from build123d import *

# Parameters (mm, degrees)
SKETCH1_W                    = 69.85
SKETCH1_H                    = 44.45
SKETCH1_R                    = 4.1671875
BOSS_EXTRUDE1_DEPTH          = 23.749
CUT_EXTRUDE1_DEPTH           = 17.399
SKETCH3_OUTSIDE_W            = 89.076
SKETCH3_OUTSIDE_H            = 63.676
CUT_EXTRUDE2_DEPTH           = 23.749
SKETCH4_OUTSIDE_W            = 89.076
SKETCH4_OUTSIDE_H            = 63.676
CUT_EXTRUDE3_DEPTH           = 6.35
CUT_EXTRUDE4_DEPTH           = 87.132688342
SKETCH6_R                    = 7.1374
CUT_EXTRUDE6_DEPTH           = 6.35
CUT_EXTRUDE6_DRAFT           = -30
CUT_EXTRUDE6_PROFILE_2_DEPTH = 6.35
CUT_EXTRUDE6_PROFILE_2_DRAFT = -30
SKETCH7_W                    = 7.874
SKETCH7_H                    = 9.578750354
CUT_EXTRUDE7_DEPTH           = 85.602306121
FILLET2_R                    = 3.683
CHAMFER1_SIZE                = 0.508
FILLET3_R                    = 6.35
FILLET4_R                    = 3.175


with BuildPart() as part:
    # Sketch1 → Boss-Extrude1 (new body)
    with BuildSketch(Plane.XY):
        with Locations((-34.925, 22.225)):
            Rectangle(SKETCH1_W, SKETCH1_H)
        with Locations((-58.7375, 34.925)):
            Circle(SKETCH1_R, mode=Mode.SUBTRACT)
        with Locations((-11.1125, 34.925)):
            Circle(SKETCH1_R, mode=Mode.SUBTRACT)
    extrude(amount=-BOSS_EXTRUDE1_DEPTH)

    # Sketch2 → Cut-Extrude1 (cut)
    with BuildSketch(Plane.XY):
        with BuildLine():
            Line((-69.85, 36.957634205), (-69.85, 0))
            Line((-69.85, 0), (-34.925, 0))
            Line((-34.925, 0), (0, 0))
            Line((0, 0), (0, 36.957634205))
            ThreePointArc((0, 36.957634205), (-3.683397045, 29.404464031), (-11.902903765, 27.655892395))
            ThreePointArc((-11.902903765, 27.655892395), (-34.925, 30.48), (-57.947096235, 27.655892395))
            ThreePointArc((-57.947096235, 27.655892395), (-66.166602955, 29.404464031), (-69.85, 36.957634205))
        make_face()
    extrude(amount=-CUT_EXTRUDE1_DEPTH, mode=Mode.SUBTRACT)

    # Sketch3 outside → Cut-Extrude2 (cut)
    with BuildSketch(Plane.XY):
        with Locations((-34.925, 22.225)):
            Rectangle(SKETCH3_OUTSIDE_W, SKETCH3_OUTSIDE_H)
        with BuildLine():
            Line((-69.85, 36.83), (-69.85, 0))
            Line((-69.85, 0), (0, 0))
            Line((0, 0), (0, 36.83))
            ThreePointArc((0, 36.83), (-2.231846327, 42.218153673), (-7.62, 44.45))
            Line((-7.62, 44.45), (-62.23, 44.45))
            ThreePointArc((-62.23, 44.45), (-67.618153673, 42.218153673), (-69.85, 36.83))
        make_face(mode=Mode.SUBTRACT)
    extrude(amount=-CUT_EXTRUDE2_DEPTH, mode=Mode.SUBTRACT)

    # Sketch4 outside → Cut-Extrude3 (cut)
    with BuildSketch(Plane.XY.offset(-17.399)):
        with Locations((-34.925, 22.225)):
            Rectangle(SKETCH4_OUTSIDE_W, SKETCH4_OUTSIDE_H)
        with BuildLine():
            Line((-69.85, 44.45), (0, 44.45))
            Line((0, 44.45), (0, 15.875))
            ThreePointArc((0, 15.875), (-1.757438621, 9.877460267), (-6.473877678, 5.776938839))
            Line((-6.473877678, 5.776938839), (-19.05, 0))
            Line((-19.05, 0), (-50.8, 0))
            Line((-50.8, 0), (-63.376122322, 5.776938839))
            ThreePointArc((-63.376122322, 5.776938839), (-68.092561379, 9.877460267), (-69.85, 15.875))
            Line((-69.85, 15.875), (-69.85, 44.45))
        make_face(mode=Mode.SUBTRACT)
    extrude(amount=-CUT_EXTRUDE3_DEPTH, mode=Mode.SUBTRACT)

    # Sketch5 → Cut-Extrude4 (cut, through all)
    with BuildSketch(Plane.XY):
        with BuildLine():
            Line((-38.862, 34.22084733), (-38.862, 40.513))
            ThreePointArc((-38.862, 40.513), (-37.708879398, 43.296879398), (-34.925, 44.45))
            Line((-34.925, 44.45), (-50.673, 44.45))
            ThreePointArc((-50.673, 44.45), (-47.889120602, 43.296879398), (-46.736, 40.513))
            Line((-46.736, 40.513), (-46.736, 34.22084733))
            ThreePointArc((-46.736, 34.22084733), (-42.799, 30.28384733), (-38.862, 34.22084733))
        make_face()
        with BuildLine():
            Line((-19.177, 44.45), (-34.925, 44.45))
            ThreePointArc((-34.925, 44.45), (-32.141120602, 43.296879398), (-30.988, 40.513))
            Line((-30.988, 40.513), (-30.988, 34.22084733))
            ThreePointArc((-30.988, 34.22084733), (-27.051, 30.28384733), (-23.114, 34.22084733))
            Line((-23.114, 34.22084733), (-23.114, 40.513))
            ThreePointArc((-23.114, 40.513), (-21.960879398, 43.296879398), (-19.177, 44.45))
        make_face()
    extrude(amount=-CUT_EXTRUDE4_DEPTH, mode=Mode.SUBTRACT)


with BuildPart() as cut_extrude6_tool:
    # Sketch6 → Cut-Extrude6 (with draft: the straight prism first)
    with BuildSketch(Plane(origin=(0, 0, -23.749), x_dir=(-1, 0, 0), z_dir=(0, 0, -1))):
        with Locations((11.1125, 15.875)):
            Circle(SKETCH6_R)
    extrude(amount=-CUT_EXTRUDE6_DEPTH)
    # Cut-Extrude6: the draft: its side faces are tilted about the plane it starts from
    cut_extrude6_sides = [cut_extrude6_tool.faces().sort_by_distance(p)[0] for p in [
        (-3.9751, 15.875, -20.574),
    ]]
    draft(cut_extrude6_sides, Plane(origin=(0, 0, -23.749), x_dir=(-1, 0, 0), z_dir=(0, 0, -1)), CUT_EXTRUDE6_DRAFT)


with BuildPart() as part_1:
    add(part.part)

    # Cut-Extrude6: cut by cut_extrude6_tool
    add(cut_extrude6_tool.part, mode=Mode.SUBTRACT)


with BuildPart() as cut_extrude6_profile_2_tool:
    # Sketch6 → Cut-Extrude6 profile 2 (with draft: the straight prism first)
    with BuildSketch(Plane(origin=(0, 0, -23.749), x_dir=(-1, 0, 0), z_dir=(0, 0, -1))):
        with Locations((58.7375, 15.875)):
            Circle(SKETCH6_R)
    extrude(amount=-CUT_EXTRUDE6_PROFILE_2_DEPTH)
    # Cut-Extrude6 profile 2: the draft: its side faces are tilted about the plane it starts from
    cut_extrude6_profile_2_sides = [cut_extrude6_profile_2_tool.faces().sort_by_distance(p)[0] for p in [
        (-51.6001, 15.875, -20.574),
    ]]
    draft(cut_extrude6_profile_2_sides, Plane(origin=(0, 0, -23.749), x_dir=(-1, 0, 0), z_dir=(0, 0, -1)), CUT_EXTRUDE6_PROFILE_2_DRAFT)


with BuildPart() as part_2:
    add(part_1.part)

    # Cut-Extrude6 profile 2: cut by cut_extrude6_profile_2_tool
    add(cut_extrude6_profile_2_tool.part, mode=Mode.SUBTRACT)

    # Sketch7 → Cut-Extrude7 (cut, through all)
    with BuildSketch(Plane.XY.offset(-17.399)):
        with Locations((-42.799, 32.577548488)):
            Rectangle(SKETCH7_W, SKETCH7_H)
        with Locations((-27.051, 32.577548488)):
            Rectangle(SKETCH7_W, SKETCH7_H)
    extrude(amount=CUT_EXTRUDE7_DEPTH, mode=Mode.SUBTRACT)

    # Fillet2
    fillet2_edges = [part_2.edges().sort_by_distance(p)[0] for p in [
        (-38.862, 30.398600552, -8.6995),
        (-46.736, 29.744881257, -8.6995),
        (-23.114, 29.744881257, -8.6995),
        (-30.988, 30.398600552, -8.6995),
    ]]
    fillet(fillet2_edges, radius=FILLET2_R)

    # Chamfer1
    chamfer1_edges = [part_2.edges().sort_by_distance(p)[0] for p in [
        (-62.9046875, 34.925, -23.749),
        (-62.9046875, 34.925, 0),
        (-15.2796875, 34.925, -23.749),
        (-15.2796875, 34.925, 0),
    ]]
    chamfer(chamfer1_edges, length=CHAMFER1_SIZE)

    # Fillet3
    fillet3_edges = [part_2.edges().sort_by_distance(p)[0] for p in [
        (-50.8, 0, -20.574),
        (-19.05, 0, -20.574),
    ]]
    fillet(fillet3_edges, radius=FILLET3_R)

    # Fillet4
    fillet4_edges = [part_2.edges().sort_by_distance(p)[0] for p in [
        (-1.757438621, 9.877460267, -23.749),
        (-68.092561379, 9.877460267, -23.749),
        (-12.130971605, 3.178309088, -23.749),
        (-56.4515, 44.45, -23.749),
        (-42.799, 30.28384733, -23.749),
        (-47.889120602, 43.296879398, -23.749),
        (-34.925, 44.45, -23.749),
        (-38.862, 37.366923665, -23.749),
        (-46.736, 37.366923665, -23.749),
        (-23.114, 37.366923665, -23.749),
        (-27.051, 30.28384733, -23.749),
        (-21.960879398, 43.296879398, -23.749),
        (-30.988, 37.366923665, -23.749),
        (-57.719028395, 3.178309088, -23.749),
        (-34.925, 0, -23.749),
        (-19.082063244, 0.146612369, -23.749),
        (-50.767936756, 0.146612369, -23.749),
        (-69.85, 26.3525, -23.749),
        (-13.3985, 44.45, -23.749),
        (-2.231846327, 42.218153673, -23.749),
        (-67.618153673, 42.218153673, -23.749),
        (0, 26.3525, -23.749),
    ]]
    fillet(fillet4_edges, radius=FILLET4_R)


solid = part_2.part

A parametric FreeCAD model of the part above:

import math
import FreeCAD as App
import Part
import Sketcher

V = App.Vector
Q = App.Units.Quantity


def edges_at(feature, points):
    """Names of the edges that pass closest to the given points."""
    edges = feature.Shape.Edges
    near = lambda p: min(range(len(edges)), key=lambda i: edges[i].distToShape(Part.Vertex(*p))[0])
    return sorted({f"Edge{near(p) + 1}" for p in points})


def faces_at(feature, points):
    """Names of the faces that lie closest to the given points."""
    faces = feature.Shape.Faces
    near = lambda p: min(range(len(faces)), key=lambda i: faces[i].distToShape(Part.Vertex(*p))[0])
    return sorted({f"Face{near(p) + 1}" for p in points})


def add_polygon(sketch, points):
    """Adds a closed chain of lines whose ends are joined by coincident constraints."""
    first, n = sketch.GeometryCount, len(points)
    for a, b in zip(points, points[1:] + points[:1]):
        sketch.addGeometry(Part.LineSegment(App.Vector(*a, 0), App.Vector(*b, 0)), False)
    for i in range(n):
        sketch.addConstraint(Sketcher.Constraint("Coincident", first + i, 2, first + (i + 1) % n, 1))

doc = App.newDocument("Part")
body = doc.addObject("PartDesign::Body", "Body")

# Sketch on XY plane
sketch1 = doc.addObject("Sketcher::SketchObject", "Sketch")
body.addObject(sketch1)
sketch1.AttachmentSupport = (doc.XY_Plane, [""])
sketch1.MapMode = "FlatFace"
add_polygon(sketch1, [(-69.8, 44.5), (-69.8, 0), (0, 0), (0, 44.5)])  # lines 0-3
sketch1.addGeometry(Part.Circle(V(-58.7, 34.9, 0), V(0, 0, 1), 4.2), False)  # 4
sketch1.addGeometry(Part.Circle(V(-11.1, 34.9, 0), V(0, 0, 1), 4.2), False)  # 5
sketch1.addConstraint([
    Sketcher.Constraint("Vertical", 0),
    Sketcher.Constraint("Horizontal", 1),
    Sketcher.Constraint("Vertical", 2),
    Sketcher.Constraint("Horizontal", 3),
    Sketcher.Constraint("Coincident", 1, 2, -1, 1),
    Sketcher.Constraint("Equal", 4, 5),
    Sketcher.Constraint("Horizontal", 4, 3, 5, 3),
    Sketcher.Constraint("Diameter", 4, Q("0.328125 in")),
    Sketcher.Constraint("DistanceX", 1, 1, 1, 2, Q("2.75 in")),
    Sketcher.Constraint("DistanceY", 0, 2, 0, 1, Q("1.75 in")),
    Sketcher.Constraint("DistanceX", 4, 3, -1, 1, Q("2.3125 in")),
    Sketcher.Constraint("DistanceY", -1, 1, 4, 3, Q("1.375 in")),
    Sketcher.Constraint("DistanceX", 5, 3, -1, 1, Q("0.4375 in")),
])
pad1 = doc.addObject("PartDesign::Pad", "Pad")
body.addObject(pad1)
pad1.Profile = sketch1
pad1.Length = Q("0.935 in")
pad1.Reversed = True

# Sketch on XY plane
sketch2 = doc.addObject("Sketcher::SketchObject", "Sketch001")
body.addObject(sketch2)
sketch2.AttachmentSupport = (doc.XY_Plane, [""])
sketch2.MapMode = "FlatFace"
sketch2.addGeometry([
    Part.LineSegment(V(-70, 37, 0), V(-70, 0, 0)),  # 0
    Part.LineSegment(V(-70, 0, 0), V(0, 0, 0)),  # 1
    Part.LineSegment(V(0, 0, 0), V(0, 37, 0)),  # 2
    Part.ArcOfCircle(Part.Circle(V(-10, 37, 0), V(0, 0, 1), 10), math.radians(-104), math.radians(0)),  # 3
    Part.ArcOfCircle(Part.Circle(V(-35, -65, 0), V(0, 0, 1), 95), math.radians(76), math.radians(104)),  # 4
    Part.ArcOfCircle(Part.Circle(V(-60, 37, 0), V(0, 0, 1), 10), math.radians(180), math.radians(284)),  # 5
], False)
sketch2.addConstraint([
    Sketcher.Constraint("Coincident", 0, 2, 1, 1),
    Sketcher.Constraint("Coincident", 1, 2, 2, 1),
    Sketcher.Constraint("Tangent", 2, 2, 3, 2),
    Sketcher.Constraint("Tangent", 3, 1, 4, 1),
    Sketcher.Constraint("Tangent", 4, 2, 5, 2),
    Sketcher.Constraint("Tangent", 5, 1, 0, 1),
    Sketcher.Constraint("Vertical", 0),
    Sketcher.Constraint("Horizontal", 1),
    Sketcher.Constraint("Vertical", 2),
    Sketcher.Constraint("Coincident", 1, 2, -1, 1),
    Sketcher.Constraint("Equal", 3, 5),
    Sketcher.Constraint("Horizontal", 3, 3, 5, 3),
    Sketcher.Constraint("Radius", 4, Q("3.75 in")),
    Sketcher.Constraint("DistanceX", 1, 1, 1, 2, Q("2.75 in")),
    Sketcher.Constraint("Radius", 3, Q("0.3774 in")),
    Sketcher.Constraint("DistanceY", 4, 3, -1, 1, Q("2.55 in")),
])
pocket1 = doc.addObject("PartDesign::Pocket", "Pocket")
body.addObject(pocket1)
pocket1.Profile = sketch2
pocket1.Length = Q("0.685 in")

# Sketch on XY plane
sketch3 = doc.addObject("Sketcher::SketchObject", "Sketch002")
body.addObject(sketch3)
sketch3.AttachmentSupport = (doc.XY_Plane, [""])
sketch3.MapMode = "FlatFace"
add_polygon(sketch3, [(-79, 54), (-79, -10), (10, -10), (10, 54)])  # lines 0-3
sketch3.addGeometry(Part.LineSegment(V(-70, 0, 0), V(-70, 37, 0)), False)  # 4
sketch3.addGeometry(Part.ArcOfCircle(Part.Circle(V(-62, 37, 0), V(0, 0, 1), 8), math.radians(90), math.radians(180)), False)  # 5
sketch3.addGeometry(Part.LineSegment(V(-62, 44, 0), V(-8, 44, 0)), False)  # 6
sketch3.addGeometry(Part.ArcOfCircle(Part.Circle(V(-8, 37, 0), V(0, 0, 1), 8), math.radians(0), math.radians(90)), False)  # 7
sketch3.addGeometry(Part.LineSegment(V(0, 37, 0), V(0, 0, 0)), False)  # 8
sketch3.addGeometry(Part.LineSegment(V(0, 0, 0), V(-70, 0, 0)), False)  # 9
sketch3.addConstraint([
    Sketcher.Constraint("Tangent", 4, 2, 5, 2),
    Sketcher.Constraint("Tangent", 5, 1, 6, 1),
    Sketcher.Constraint("Tangent", 6, 2, 7, 2),
    Sketcher.Constraint("Tangent", 7, 1, 8, 1),
    Sketcher.Constraint("Coincident", 8, 2, 9, 1),
    Sketcher.Constraint("Coincident", 9, 2, 4, 1),
    Sketcher.Constraint("Vertical", 0),
    Sketcher.Constraint("Horizontal", 1),
    Sketcher.Constraint("Vertical", 2),
    Sketcher.Constraint("Horizontal", 3),
    Sketcher.Constraint("Vertical", 4),
    Sketcher.Constraint("Horizontal", 6),
    Sketcher.Constraint("Vertical", 8),
    Sketcher.Constraint("Horizontal", 9),
    Sketcher.Constraint("Coincident", 8, 2, -1, 1),
    Sketcher.Constraint("Equal", 5, 7),
    Sketcher.Constraint("Radius", 5, Q("0.3 in")),
    Sketcher.Constraint("DistanceX", 6, 1, 6, 2, Q("2.15 in")),
    Sketcher.Constraint("DistanceY", 4, 1, 4, 2, Q("1.45 in")),
    Sketcher.Constraint("DistanceX", 1, 1, 1, 2, Q("89.076 mm")),
    Sketcher.Constraint("DistanceY", 0, 2, 0, 1, Q("63.676 mm")),
    Sketcher.Constraint("DistanceX", 0, 2, -1, 1, Q("79.463 mm")),
    Sketcher.Constraint("DistanceY", 0, 2, -1, 1, Q("9.613 mm")),
])
pocket2 = doc.addObject("PartDesign::Pocket", "Pocket001")
body.addObject(pocket2)
pocket2.Profile = sketch3
pocket2.Length = Q("0.935 in")

# Sketch on XY plane
sketch4 = doc.addObject("Sketcher::SketchObject", "Sketch003")
body.addObject(sketch4)
sketch4.AttachmentSupport = (doc.XY_Plane, [""])
sketch4.MapMode = "FlatFace"
sketch4.AttachmentOffset = App.Placement(V(0, 0, -0.685 * 25.4), App.Rotation())
add_polygon(sketch4, [(-79, 54), (-79, -10), (10, -10), (10, 54)])  # lines 0-3
sketch4.addGeometry(Part.LineSegment(V(-70, 16, 0), V(-70, 44, 0)), False)  # 4
sketch4.addGeometry(Part.LineSegment(V(-70, 44, 0), V(0, 44, 0)), False)  # 5
sketch4.addGeometry(Part.LineSegment(V(0, 44, 0), V(0, 16, 0)), False)  # 6
sketch4.addGeometry(Part.ArcOfCircle(Part.Circle(V(-11, 16, 0), V(0, 0, 1), 11), math.radians(-65), math.radians(0)), False)  # 7
sketch4.addGeometry(Part.LineSegment(V(-6, 6, 0), V(-19, 0, 0)), False)  # 8
sketch4.addGeometry(Part.LineSegment(V(-19, 0, 0), V(-51, 0, 0)), False)  # 9
sketch4.addGeometry(Part.LineSegment(V(-51, 0, 0), V(-63, 6, 0)), False)  # 10
sketch4.addGeometry(Part.ArcOfCircle(Part.Circle(V(-59, 16, 0), V(0, 0, 1), 11), math.radians(180), math.radians(245)), False)  # 11
sketch4.addConstraint([
    Sketcher.Constraint("Coincident", 4, 2, 5, 1),
    Sketcher.Constraint("Coincident", 5, 2, 6, 1),
    Sketcher.Constraint("Tangent", 6, 2, 7, 2),
    Sketcher.Constraint("Tangent", 7, 1, 8, 1),
    Sketcher.Constraint("Coincident", 8, 2, 9, 1),
    Sketcher.Constraint("Coincident", 9, 2, 10, 1),
    Sketcher.Constraint("Tangent", 10, 2, 11, 2),
    Sketcher.Constraint("Tangent", 11, 1, 4, 1),
    Sketcher.Constraint("Vertical", 0),
    Sketcher.Constraint("Horizontal", 1),
    Sketcher.Constraint("Vertical", 2),
    Sketcher.Constraint("Horizontal", 3),
    Sketcher.Constraint("Vertical", 4),
    Sketcher.Constraint("Horizontal", 5),
    Sketcher.Constraint("Vertical", 6),
    Sketcher.Constraint("Horizontal", 9),
    Sketcher.Constraint("Equal", 7, 11),
    Sketcher.Constraint("PointOnObject", 5, 2, -2),
    Sketcher.Constraint("PointOnObject", 8, 2, -1),
    Sketcher.Constraint("Horizontal", 7, 3, 11, 3),
    Sketcher.Constraint("Horizontal", 7, 1, 10, 2),
    Sketcher.Constraint("DistanceX", 9, 2, -1, 1, Q("2 in")),
    Sketcher.Constraint("Radius", 7, Q("0.4375 in")),
    Sketcher.Constraint("DistanceX", 5, 1, 5, 2, Q("2.75 in")),
    Sketcher.Constraint("DistanceY", 4, 1, 4, 2, Q("1.125 in")),
    Sketcher.Constraint("DistanceY", -1, 1, 4, 2, Q("1.75 in")),
    Sketcher.Constraint("DistanceX", 1, 1, 1, 2, Q("89.076 mm")),
    Sketcher.Constraint("DistanceY", 0, 2, 0, 1, Q("63.676 mm")),
    Sketcher.Constraint("DistanceX", 0, 2, -1, 1, Q("79.463 mm")),
    Sketcher.Constraint("DistanceY", 0, 2, -1, 1, Q("9.613 mm")),
])
pocket3 = doc.addObject("PartDesign::Pocket", "Pocket002")
body.addObject(pocket3)
pocket3.Profile = sketch4
pocket3.Length = Q("0.25 in")

# Sketch on XY plane
sketch5 = doc.addObject("Sketcher::SketchObject", "Sketch004")
body.addObject(sketch5)
sketch5.AttachmentSupport = (doc.XY_Plane, [""])
sketch5.MapMode = "FlatFace"
sketch5.addGeometry([
    Part.LineSegment(V(-38.9, 34.2, 0), V(-38.9, 40.5, 0)),  # 0
    Part.ArcOfCircle(Part.Circle(V(-34.9, 40.5, 0), V(0, 0, 1), 3.9), math.radians(90), math.radians(180)),  # 1
    Part.LineSegment(V(-34.9, 44.5, 0), V(-50.7, 44.5, 0)),  # 2
    Part.ArcOfCircle(Part.Circle(V(-50.7, 40.5, 0), V(0, 0, 1), 3.9), math.radians(0), math.radians(90)),  # 3
    Part.LineSegment(V(-46.7, 40.5, 0), V(-46.7, 34.2, 0)),  # 4
    Part.ArcOfCircle(Part.Circle(V(-42.8, 34.2, 0), V(0, 0, 1), 3.9), math.radians(180), math.radians(360)),  # 5
    Part.LineSegment(V(-19.2, 44.5, 0), V(-34.9, 44.5, 0)),  # 6
    Part.ArcOfCircle(Part.Circle(V(-34.9, 40.5, 0), V(0, 0, 1), 3.9), math.radians(0), math.radians(90)),  # 7
    Part.LineSegment(V(-31, 40.5, 0), V(-31, 34.2, 0)),  # 8
    Part.ArcOfCircle(Part.Circle(V(-27.1, 34.2, 0), V(0, 0, 1), 3.9), math.radians(180), math.radians(360)),  # 9
    Part.LineSegment(V(-23.1, 34.2, 0), V(-23.1, 40.5, 0)),  # 10
    Part.ArcOfCircle(Part.Circle(V(-19.2, 40.5, 0), V(0, 0, 1), 3.9), math.radians(90), math.radians(180)),  # 11
], False)
sketch5.addConstraint([
    Sketcher.Constraint("Tangent", 0, 2, 1, 2),
    Sketcher.Constraint("Tangent", 1, 1, 2, 1),
    Sketcher.Constraint("Tangent", 2, 2, 3, 2),
    Sketcher.Constraint("Tangent", 3, 1, 4, 1),
    Sketcher.Constraint("Tangent", 4, 2, 5, 1),
    Sketcher.Constraint("Tangent", 5, 2, 0, 1),
    Sketcher.Constraint("Tangent", 6, 2, 7, 2),
    Sketcher.Constraint("Tangent", 7, 1, 8, 1),
    Sketcher.Constraint("Tangent", 8, 2, 9, 1),
    Sketcher.Constraint("Tangent", 9, 2, 10, 1),
    Sketcher.Constraint("Tangent", 10, 2, 11, 2),
    Sketcher.Constraint("Tangent", 11, 1, 6, 1),
    Sketcher.Constraint("Vertical", 0),
    Sketcher.Constraint("Horizontal", 2),
    Sketcher.Constraint("Vertical", 4),
    Sketcher.Constraint("Horizontal", 6),
    Sketcher.Constraint("Vertical", 8),
    Sketcher.Constraint("Vertical", 10),
    Sketcher.Constraint("Coincident", 7, 3, 1, 3),
    Sketcher.Constraint("Equal", 1, 3),
    Sketcher.Constraint("Equal", 3, 5),
    Sketcher.Constraint("Equal", 5, 7),
    Sketcher.Constraint("Equal", 7, 9),
    Sketcher.Constraint("Equal", 9, 11),
    Sketcher.Constraint("Horizontal", 5, 3, 9, 3),
    Sketcher.Constraint("Radius", 1, Q("0.155 in")),
    Sketcher.Constraint("DistanceX", 0, 2, -1, 1, Q("1.53 in")),
    Sketcher.Constraint("DistanceY", -1, 1, 1, 1, Q("1.75 in")),
    Sketcher.Constraint("DistanceY", 0, 1, 0, 2, Q("6.292153 mm")),
])
pocket4 = doc.addObject("PartDesign::Pocket", "Pocket003")
body.addObject(pocket4)
pocket4.Profile = sketch5
pocket4.Type = "ThroughAll"
body2 = doc.addObject("PartDesign::Body", "Body001")

# Sketch on XY plane
sketch6 = doc.addObject("Sketcher::SketchObject", "Sketch005")
body2.addObject(sketch6)
sketch6.AttachmentSupport = (doc.getObject("XY_Plane001"), [""])
sketch6.MapMode = "FlatFace"
sketch6.AttachmentOffset = App.Placement(V(0, 0, -0.935 * 25.4), App.Rotation())
sketch6.addGeometry(Part.Circle(V(-11, 16, 0), V(0, 0, 1), 7), False)
sketch6.addConstraint([
    Sketcher.Constraint("Diameter", 0, Q("0.562 in")),
    Sketcher.Constraint("DistanceX", 0, 3, -1, 1, Q("0.4375 in")),
    Sketcher.Constraint("DistanceY", -1, 1, 0, 3, Q("0.625 in")),
])
pad2 = doc.addObject("PartDesign::Pad", "Pad001")
body2.addObject(pad2)
pad2.Profile = sketch6
pad2.Length = Q("0.25 in")
doc.recompute()

datumplane = doc.addObject("PartDesign::Plane", "DatumPlane")
body2.addObject(datumplane)
datumplane.AttachmentSupport = (doc.getObject("XY_Plane001"), [""])
datumplane.MapMode = "FlatFace"
datumplane.AttachmentOffset = App.Placement(V(0, 0, -0.935 * 25.4), App.Rotation())
draft = doc.addObject("PartDesign::Draft", "Draft")
body2.addObject(draft)
draft.Base = (pad2, faces_at(pad2, [(-3.975, 15.875, -20.574)]))
draft.NeutralPlane = (datumplane, [""])
draft.Angle = 30
draft.Reversed = False
doc.recompute()

boolean = doc.addObject("PartDesign::Boolean", "Boolean")
body.addObject(boolean)
boolean.Type = "Cut"
boolean.addObjects([body2])
body3 = doc.addObject("PartDesign::Body", "Body002")

# Sketch on XY plane
sketch7 = doc.addObject("Sketcher::SketchObject", "Sketch006")
body3.addObject(sketch7)
sketch7.AttachmentSupport = (doc.getObject("XY_Plane002"), [""])
sketch7.MapMode = "FlatFace"
sketch7.AttachmentOffset = App.Placement(V(0, 0, -0.935 * 25.4), App.Rotation())
sketch7.addGeometry(Part.Circle(V(-59, 16, 0), V(0, 0, 1), 7), False)
sketch7.addConstraint([
    Sketcher.Constraint("Diameter", 0, Q("0.562 in")),
    Sketcher.Constraint("DistanceX", 0, 3, -1, 1, Q("2.3125 in")),
    Sketcher.Constraint("DistanceY", -1, 1, 0, 3, Q("0.625 in")),
])
pad3 = doc.addObject("PartDesign::Pad", "Pad002")
body3.addObject(pad3)
pad3.Profile = sketch7
pad3.Length = Q("0.25 in")
doc.recompute()

datumplane2 = doc.addObject("PartDesign::Plane", "DatumPlane001")
body3.addObject(datumplane2)
datumplane2.AttachmentSupport = (doc.getObject("XY_Plane002"), [""])
datumplane2.MapMode = "FlatFace"
datumplane2.AttachmentOffset = App.Placement(V(0, 0, -0.935 * 25.4), App.Rotation())
draft2 = doc.addObject("PartDesign::Draft", "Draft001")
body3.addObject(draft2)
draft2.Base = (pad3, faces_at(pad3, [(-51.6, 15.875, -20.574)]))
draft2.NeutralPlane = (datumplane2, [""])
draft2.Angle = 30
draft2.Reversed = False
doc.recompute()

boolean2 = doc.addObject("PartDesign::Boolean", "Boolean001")
body.addObject(boolean2)
boolean2.Type = "Cut"
boolean2.addObjects([body3])

# Sketch on XY plane
sketch8 = doc.addObject("Sketcher::SketchObject", "Sketch007")
body.addObject(sketch8)
sketch8.AttachmentSupport = (doc.XY_Plane, [""])
sketch8.MapMode = "FlatFace"
sketch8.AttachmentOffset = App.Placement(V(0, 0, -0.685 * 25.4), App.Rotation())
add_polygon(sketch8, [(-47, 37), (-47, 28), (-39, 28), (-39, 37)])  # lines 0-3
add_polygon(sketch8, [(-31, 37), (-31, 28), (-23, 28), (-23, 37)])  # lines 4-7
sketch8.addConstraint([
    Sketcher.Constraint("Vertical", 0),
    Sketcher.Constraint("Horizontal", 1),
    Sketcher.Constraint("Vertical", 2),
    Sketcher.Constraint("Horizontal", 3),
    Sketcher.Constraint("Vertical", 4),
    Sketcher.Constraint("Horizontal", 5),
    Sketcher.Constraint("Vertical", 6),
    Sketcher.Constraint("Horizontal", 7),
    Sketcher.Constraint("Horizontal", 1, 2, 4, 2),
    Sketcher.Constraint("Horizontal", 3, 2, 6, 2),
    Sketcher.Constraint("Equal", 3, 5),
    Sketcher.Constraint("DistanceX", 1, 1, 1, 2, Q("0.31 in")),
    Sketcher.Constraint("DistanceX", 0, 2, -1, 1, Q("1.84 in")),
    Sketcher.Constraint("DistanceX", 4, 2, -1, 1, Q("1.22 in")),
    Sketcher.Constraint("DistanceY", 0, 2, 0, 1, Q("9.57875 mm")),
    Sketcher.Constraint("DistanceY", -1, 1, 0, 2, Q("27.788173 mm")),
])
pocket5 = doc.addObject("PartDesign::Pocket", "Pocket004")
body.addObject(pocket5)
pocket5.Profile = sketch8
pocket5.Type = "ThroughAll"
pocket5.Reversed = True
doc.recompute()

fillet = doc.addObject("PartDesign::Fillet", "Fillet")
body.addObject(fillet)
fillet.Base = (pocket5, edges_at(pocket5, [
    (-38.862, 30.399, -8.7),
    (-46.736, 29.745, -8.7),
    (-23.114, 29.745, -8.7),
    (-30.988, 30.399, -8.7),
]))
fillet.Radius = Q("0.145 in")
doc.recompute()

chamfer = doc.addObject("PartDesign::Chamfer", "Chamfer")
body.addObject(chamfer)
chamfer.Base = (fillet, edges_at(fillet, [
    (-62.905, 34.925, -23.749),
    (-62.905, 34.925, 0),
    (-15.28, 34.925, -23.749),
    (-15.28, 34.925, 0),
]))
chamfer.Size = Q("0.02 in")
doc.recompute()

fillet2 = doc.addObject("PartDesign::Fillet", "Fillet001")
body.addObject(fillet2)
fillet2.Base = (chamfer, edges_at(chamfer, [(-50.8, 0, -20.574), (-19.05, 0, -20.574)]))
fillet2.Radius = Q("0.25 in")
doc.recompute()

fillet3 = doc.addObject("PartDesign::Fillet", "Fillet002")
body.addObject(fillet3)
fillet3.Base = (fillet2, edges_at(fillet2, [
    (-1.757, 9.877, -23.749),
    (-68.093, 9.877, -23.749),
    (-12.131, 3.178, -23.749),
    (-56.452, 44.45, -23.749),
    (-42.799, 30.284, -23.749),
    (-47.889, 43.297, -23.749),
    (-37.709, 43.297, -23.749),
    (-38.862, 37.367, -23.749),
    (-46.736, 37.367, -23.749),
    (-23.114, 37.367, -23.749),
    (-27.051, 30.284, -23.749),
    (-21.961, 43.297, -23.749),
    (-30.988, 37.367, -23.749),
    (-57.719, 3.178, -23.749),
    (-34.925, 0, -23.749),
    (-19.082, 0.147, -23.749),
    (-50.768, 0.147, -23.749),
    (-69.85, 26.352, -23.749),
    (-13.399, 44.45, -23.749),
    (-2.232, 42.218, -23.749),
    (-67.618, 42.218, -23.749),
    (0, 26.352, -23.749),
]))
fillet3.Radius = Q("0.125 in")

doc.recompute()
